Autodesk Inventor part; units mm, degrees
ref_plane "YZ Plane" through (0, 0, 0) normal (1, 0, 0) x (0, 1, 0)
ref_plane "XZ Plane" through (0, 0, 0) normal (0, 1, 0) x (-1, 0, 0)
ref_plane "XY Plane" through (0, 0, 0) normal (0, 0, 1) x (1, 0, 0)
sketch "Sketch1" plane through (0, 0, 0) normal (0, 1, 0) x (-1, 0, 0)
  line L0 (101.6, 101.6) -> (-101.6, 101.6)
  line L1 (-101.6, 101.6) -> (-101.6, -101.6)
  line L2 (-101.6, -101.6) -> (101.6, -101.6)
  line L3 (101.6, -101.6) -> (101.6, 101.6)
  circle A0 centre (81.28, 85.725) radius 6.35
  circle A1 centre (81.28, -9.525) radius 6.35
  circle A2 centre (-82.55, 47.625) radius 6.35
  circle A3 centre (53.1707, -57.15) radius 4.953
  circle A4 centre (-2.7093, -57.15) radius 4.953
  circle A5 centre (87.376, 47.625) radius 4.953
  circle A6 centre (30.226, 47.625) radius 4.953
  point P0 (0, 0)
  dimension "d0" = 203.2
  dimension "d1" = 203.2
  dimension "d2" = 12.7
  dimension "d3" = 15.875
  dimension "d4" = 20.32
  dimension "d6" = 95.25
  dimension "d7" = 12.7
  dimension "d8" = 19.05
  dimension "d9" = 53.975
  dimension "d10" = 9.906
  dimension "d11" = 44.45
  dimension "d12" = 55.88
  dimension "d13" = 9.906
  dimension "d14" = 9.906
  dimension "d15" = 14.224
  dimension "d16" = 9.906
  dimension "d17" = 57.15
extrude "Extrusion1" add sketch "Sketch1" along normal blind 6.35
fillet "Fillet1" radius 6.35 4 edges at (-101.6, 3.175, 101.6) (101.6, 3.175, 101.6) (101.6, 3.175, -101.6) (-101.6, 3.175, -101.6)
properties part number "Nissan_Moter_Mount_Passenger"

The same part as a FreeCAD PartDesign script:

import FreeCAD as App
import Part
import Sketcher

V = App.Vector
Q = App.Units.Quantity


def edges_at(feature, points):
    """Names of the edges that pass closest to the given points."""
    edges = feature.Shape.Edges
    near = lambda p: min(range(len(edges)), key=lambda i: edges[i].distToShape(Part.Vertex(*p))[0])
    return sorted({f"Edge{near(p) + 1}" for p in points})


def add_polygon(sketch, points):
    """Adds a closed chain of lines whose ends are joined by coincident constraints."""
    first, n = sketch.GeometryCount, len(points)
    for a, b in zip(points, points[1:] + points[:1]):
        sketch.addGeometry(Part.LineSegment(App.Vector(*a, 0), App.Vector(*b, 0)), False)
    for i in range(n):
        sketch.addConstraint(Sketcher.Constraint("Coincident", first + i, 2, first + (i + 1) % n, 1))

doc = App.newDocument("Part")
params = doc.addObject("Spreadsheet::Sheet", "Params")
for row, (alias, value) in enumerate([
    ("sketch1_diameter", "0.5 in"),
    ("sketch1_diameter2", "0.39 in"),
    ("sketch1_width", "8 in"),
    ("pad1_length", "0.25 in"),
    ("fillet_radius", "0.25 in"),
], start=1):
    params.set(f"A{row}", alias)
    params.set(f"B{row}", "=" + value)
    params.setAlias(f"B{row}", alias)

body = doc.addObject("PartDesign::Body", "Body")

# Sketch on XZ plane
sketch1 = body.newObject("Sketcher::SketchObject", "Sketch")
sketch1.AttachmentSupport = (doc.getObject("XZ_Plane"), [""])
sketch1.MapMode = "FlatFace"
add_polygon(sketch1, [(-101.6, -101.6), (-101.6, 101.6), (101.6, 101.6), (101.6, -101.6)])  # lines 0-3
sketch1.addGeometry(Part.Circle(V(2.7, -57.1, 0), V(0, 0, 1), 5), False)  # 4
sketch1.addGeometry(Part.Circle(V(-53.2, -57.1, 0), V(0, 0, 1), 5), False)  # 5
sketch1.addGeometry(Part.Circle(V(-81.3, -9.5, 0), V(0, 0, 1), 6.3), False)  # 6
sketch1.addGeometry(Part.Circle(V(82.5, 47.6, 0), V(0, 0, 1), 6.3), False)  # 7
sketch1.addGeometry(Part.Circle(V(-30.2, 47.6, 0), V(0, 0, 1), 5), False)  # 8
sketch1.addGeometry(Part.Circle(V(-87.4, 47.6, 0), V(0, 0, 1), 5), False)  # 9
sketch1.addGeometry(Part.Circle(V(-81.3, 85.7, 0), V(0, 0, 1), 6.3), False)  # 10
sketch1.addConstraint([
    Sketcher.Constraint("Vertical", 0),
    Sketcher.Constraint("Horizontal", 1),
    Sketcher.Constraint("Vertical", 2),
    Sketcher.Constraint("Horizontal", 3),
    Sketcher.Constraint("Equal", 4, 5),
    Sketcher.Constraint("Equal", 6, 7),
    Sketcher.Constraint("Equal", 5, 8),
    Sketcher.Constraint("Equal", 8, 9),
    Sketcher.Constraint("Equal", 7, 10),
    Sketcher.Constraint("Symmetric", 0, 2, 2, 2, -1, 1),
    Sketcher.Constraint("Horizontal", 4, 3, 5, 3),
    Sketcher.Constraint("Horizontal", 7, 3, 8, 3),
    Sketcher.Constraint("Horizontal", 8, 3, 9, 3),
    Sketcher.Constraint("Vertical", 6, 3, 10, 3),
    Sketcher.Constraint("Equal", 3, 0),
    Sketcher.Constraint("Diameter", 6, Q("0.5 in")),
    Sketcher.Constraint("Diameter", 4, Q("0.39 in")),
    Sketcher.Constraint("DistanceX", 1, 1, 1, 2, Q("8 in")),
    Sketcher.Constraint("DistanceX", 5, 3, 4, 3, Q("2.2 in")),
    Sketcher.Constraint("DistanceX", 0, 2, 10, 3, Q("0.8 in")),
    Sketcher.Constraint("DistanceY", 4, 3, -1, 1, Q("2.25 in")),
    Sketcher.Constraint("DistanceY", 6, 3, 7, 3, Q("2.25 in")),
    Sketcher.Constraint("DistanceX", 9, 3, 8, 3, Q("2.25 in")),
    Sketcher.Constraint("DistanceY", 6, 3, 10, 3, Q("3.75 in")),
    Sketcher.Constraint("DistanceX", 0, 2, 9, 3, Q("0.56 in")),
    Sketcher.Constraint("DistanceX", 7, 3, 1, 2, Q("0.75 in")),
    Sketcher.Constraint("DistanceY", 10, 3, 0, 2, Q("0.625 in")),
    Sketcher.Constraint("DistanceX", -1, 1, 4, 3, 2.7093),
])
sketch1.setExpression("Constraints[19]", "Params.sketch1_diameter")
sketch1.setExpression("Constraints[20]", "Params.sketch1_diameter2")
sketch1.setExpression("Constraints[21]", "Params.sketch1_width")
pad1 = body.newObject("PartDesign::Pad", "Pad")
pad1.Profile = sketch1
pad1.setExpression("Length", "Params.pad1_length")
pad1.Reversed = True
doc.recompute()

fillet = body.newObject("PartDesign::Fillet", "Fillet")
fillet.Base = (pad1, edges_at(pad1, [
    (-101.6, 3.175, 101.6),
    (101.6, 3.175, 101.6),
    (101.6, 3.175, -101.6),
    (-101.6, 3.175, -101.6),
]))
fillet.setExpression("Radius", "Params.fillet_radius")

doc.recompute()
